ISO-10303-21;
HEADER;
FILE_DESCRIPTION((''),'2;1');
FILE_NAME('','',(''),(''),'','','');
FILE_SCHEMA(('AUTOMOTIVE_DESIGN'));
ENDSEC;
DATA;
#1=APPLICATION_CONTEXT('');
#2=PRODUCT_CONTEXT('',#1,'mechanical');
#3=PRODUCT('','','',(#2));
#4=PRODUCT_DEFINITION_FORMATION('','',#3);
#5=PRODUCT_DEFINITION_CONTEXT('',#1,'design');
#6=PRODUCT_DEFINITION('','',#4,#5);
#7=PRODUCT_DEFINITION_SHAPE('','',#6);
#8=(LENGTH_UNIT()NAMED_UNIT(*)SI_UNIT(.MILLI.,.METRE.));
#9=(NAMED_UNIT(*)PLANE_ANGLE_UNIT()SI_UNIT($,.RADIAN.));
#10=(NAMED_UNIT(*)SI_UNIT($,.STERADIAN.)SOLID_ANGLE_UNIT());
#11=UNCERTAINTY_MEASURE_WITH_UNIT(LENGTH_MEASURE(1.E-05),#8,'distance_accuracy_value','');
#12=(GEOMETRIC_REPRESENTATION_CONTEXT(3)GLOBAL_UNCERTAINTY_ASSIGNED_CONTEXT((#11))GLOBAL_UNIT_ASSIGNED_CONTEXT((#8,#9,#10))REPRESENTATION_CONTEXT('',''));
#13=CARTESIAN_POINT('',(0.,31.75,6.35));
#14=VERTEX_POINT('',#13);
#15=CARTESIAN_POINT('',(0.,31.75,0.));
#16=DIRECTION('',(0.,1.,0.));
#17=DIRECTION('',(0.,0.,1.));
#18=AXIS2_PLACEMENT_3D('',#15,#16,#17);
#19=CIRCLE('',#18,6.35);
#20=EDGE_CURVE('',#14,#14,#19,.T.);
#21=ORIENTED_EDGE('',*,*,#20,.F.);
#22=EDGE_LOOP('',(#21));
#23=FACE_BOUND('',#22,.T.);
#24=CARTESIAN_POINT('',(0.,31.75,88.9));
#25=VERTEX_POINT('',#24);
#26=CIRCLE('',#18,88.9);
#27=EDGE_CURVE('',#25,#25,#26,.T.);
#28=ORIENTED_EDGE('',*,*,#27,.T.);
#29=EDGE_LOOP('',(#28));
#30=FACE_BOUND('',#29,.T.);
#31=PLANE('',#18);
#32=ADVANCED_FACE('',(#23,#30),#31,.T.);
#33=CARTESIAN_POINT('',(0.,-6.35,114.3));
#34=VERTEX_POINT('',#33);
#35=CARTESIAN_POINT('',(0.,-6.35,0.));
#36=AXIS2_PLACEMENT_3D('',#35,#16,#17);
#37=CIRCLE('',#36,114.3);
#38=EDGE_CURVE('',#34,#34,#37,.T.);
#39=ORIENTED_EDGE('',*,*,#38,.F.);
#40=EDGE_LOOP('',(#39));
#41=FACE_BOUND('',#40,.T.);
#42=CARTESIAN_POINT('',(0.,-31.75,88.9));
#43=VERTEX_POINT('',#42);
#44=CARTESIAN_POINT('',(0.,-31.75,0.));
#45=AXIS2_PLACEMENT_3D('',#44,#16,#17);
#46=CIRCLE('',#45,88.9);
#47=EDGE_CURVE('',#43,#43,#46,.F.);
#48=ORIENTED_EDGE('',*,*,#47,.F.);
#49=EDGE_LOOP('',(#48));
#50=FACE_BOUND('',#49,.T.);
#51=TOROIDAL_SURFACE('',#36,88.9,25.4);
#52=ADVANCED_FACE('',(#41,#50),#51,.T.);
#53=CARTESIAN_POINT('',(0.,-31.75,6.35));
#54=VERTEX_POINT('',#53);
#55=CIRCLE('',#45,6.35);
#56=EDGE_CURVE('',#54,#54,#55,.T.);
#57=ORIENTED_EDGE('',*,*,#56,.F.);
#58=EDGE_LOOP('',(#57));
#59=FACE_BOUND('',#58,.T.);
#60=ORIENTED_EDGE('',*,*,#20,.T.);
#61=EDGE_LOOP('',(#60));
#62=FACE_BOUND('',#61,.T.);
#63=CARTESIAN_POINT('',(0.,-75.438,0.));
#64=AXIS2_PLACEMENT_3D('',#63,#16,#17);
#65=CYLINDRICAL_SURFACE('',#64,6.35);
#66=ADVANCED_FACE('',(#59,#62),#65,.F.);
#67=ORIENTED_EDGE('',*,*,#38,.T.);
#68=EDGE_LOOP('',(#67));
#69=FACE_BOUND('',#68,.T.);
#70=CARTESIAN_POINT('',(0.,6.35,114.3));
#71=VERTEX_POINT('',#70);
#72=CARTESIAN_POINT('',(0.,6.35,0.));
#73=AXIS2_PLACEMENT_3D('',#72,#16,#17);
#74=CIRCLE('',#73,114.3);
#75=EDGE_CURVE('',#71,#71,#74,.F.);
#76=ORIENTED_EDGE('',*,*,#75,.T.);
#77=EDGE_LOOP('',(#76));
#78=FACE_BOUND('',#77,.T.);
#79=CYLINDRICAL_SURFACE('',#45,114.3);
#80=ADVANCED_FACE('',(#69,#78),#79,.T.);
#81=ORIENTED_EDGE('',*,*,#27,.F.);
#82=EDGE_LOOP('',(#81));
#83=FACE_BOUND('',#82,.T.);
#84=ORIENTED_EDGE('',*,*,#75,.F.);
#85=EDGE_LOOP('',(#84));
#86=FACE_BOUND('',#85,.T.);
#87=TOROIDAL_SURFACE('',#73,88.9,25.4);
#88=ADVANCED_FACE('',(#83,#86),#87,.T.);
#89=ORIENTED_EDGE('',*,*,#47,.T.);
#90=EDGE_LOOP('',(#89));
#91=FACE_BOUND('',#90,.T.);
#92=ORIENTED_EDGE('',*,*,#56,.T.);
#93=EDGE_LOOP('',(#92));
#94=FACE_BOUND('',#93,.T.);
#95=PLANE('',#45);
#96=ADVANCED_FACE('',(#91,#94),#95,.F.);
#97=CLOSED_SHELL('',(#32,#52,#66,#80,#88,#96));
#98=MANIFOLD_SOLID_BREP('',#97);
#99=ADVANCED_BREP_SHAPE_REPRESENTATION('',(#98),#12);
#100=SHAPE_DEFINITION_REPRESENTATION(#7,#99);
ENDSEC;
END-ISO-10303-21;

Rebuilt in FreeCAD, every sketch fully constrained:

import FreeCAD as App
import Part
import Sketcher
from FreeCAD import Vector
Q = App.Units.Quantity


def edges_at(feature, points):
    """Names of the edges that pass closest to the given points."""
    edges = feature.Shape.Edges
    near = lambda p: min(range(len(edges)), key=lambda i: edges[i].distToShape(Part.Vertex(*p))[0])
    return sorted({f"Edge{near(p) + 1}" for p in points})

doc = App.newDocument("Part")
body = doc.addObject("PartDesign::Body", "Body")

# Sketch on XZ plane
sketch1 = doc.addObject("Sketcher::SketchObject", "Sketch")
body.addObject(sketch1)
sketch1.AttachmentSupport = (doc.XZ_Plane, [""])
sketch1.MapMode = "FlatFace"
sketch1.addGeometry(Part.Circle(Vector(0, 0, 0), Vector(0, 0, 1), 114), False)
sketch1.addConstraint(Sketcher.Constraint("Coincident", 0, 3, -1, 1))
sketch1.addConstraint(Sketcher.Constraint("Diameter", 0, Q("9 in")))
pad1 = doc.addObject("PartDesign::Pad", "Pad")
body.addObject(pad1)
pad1.Profile = sketch1
pad1.Type = "TwoLengths"
pad1.Length = Q("1.25 in")
pad1.Length2 = Q("1.25 in")
pad1.Reversed = True
doc.recompute()

fillet = doc.addObject("PartDesign::Fillet", "Fillet")
body.addObject(fillet)
fillet.Base = (pad1, edges_at(pad1, [(-114.3, -31.75, 0), (-114.3, 31.75, 0)]))
fillet.Radius = Q("1 in")

# Sketch on XZ plane
sketch2 = doc.addObject("Sketcher::SketchObject", "Sketch001")
body.addObject(sketch2)
sketch2.AttachmentSupport = (doc.XZ_Plane, [""])
sketch2.MapMode = "FlatFace"
sketch2.AttachmentOffset = App.Placement(Vector(0, 0, -1.25 * 25.4), App.Rotation())
sketch2.addGeometry(Part.Circle(Vector(0, 0, 0), Vector(0, 0, 1), 6), False)
sketch2.addConstraint(Sketcher.Constraint("Coincident", 0, 3, -1, 1))
sketch2.addConstraint(Sketcher.Constraint("Diameter", 0, Q("0.5 in")))
pocket1 = doc.addObject("PartDesign::Pocket", "Pocket")
body.addObject(pocket1)
pocket1.Profile = sketch2
pocket1.Length = Q("4.22 in")
pocket1.Reversed = True

doc.recompute()
